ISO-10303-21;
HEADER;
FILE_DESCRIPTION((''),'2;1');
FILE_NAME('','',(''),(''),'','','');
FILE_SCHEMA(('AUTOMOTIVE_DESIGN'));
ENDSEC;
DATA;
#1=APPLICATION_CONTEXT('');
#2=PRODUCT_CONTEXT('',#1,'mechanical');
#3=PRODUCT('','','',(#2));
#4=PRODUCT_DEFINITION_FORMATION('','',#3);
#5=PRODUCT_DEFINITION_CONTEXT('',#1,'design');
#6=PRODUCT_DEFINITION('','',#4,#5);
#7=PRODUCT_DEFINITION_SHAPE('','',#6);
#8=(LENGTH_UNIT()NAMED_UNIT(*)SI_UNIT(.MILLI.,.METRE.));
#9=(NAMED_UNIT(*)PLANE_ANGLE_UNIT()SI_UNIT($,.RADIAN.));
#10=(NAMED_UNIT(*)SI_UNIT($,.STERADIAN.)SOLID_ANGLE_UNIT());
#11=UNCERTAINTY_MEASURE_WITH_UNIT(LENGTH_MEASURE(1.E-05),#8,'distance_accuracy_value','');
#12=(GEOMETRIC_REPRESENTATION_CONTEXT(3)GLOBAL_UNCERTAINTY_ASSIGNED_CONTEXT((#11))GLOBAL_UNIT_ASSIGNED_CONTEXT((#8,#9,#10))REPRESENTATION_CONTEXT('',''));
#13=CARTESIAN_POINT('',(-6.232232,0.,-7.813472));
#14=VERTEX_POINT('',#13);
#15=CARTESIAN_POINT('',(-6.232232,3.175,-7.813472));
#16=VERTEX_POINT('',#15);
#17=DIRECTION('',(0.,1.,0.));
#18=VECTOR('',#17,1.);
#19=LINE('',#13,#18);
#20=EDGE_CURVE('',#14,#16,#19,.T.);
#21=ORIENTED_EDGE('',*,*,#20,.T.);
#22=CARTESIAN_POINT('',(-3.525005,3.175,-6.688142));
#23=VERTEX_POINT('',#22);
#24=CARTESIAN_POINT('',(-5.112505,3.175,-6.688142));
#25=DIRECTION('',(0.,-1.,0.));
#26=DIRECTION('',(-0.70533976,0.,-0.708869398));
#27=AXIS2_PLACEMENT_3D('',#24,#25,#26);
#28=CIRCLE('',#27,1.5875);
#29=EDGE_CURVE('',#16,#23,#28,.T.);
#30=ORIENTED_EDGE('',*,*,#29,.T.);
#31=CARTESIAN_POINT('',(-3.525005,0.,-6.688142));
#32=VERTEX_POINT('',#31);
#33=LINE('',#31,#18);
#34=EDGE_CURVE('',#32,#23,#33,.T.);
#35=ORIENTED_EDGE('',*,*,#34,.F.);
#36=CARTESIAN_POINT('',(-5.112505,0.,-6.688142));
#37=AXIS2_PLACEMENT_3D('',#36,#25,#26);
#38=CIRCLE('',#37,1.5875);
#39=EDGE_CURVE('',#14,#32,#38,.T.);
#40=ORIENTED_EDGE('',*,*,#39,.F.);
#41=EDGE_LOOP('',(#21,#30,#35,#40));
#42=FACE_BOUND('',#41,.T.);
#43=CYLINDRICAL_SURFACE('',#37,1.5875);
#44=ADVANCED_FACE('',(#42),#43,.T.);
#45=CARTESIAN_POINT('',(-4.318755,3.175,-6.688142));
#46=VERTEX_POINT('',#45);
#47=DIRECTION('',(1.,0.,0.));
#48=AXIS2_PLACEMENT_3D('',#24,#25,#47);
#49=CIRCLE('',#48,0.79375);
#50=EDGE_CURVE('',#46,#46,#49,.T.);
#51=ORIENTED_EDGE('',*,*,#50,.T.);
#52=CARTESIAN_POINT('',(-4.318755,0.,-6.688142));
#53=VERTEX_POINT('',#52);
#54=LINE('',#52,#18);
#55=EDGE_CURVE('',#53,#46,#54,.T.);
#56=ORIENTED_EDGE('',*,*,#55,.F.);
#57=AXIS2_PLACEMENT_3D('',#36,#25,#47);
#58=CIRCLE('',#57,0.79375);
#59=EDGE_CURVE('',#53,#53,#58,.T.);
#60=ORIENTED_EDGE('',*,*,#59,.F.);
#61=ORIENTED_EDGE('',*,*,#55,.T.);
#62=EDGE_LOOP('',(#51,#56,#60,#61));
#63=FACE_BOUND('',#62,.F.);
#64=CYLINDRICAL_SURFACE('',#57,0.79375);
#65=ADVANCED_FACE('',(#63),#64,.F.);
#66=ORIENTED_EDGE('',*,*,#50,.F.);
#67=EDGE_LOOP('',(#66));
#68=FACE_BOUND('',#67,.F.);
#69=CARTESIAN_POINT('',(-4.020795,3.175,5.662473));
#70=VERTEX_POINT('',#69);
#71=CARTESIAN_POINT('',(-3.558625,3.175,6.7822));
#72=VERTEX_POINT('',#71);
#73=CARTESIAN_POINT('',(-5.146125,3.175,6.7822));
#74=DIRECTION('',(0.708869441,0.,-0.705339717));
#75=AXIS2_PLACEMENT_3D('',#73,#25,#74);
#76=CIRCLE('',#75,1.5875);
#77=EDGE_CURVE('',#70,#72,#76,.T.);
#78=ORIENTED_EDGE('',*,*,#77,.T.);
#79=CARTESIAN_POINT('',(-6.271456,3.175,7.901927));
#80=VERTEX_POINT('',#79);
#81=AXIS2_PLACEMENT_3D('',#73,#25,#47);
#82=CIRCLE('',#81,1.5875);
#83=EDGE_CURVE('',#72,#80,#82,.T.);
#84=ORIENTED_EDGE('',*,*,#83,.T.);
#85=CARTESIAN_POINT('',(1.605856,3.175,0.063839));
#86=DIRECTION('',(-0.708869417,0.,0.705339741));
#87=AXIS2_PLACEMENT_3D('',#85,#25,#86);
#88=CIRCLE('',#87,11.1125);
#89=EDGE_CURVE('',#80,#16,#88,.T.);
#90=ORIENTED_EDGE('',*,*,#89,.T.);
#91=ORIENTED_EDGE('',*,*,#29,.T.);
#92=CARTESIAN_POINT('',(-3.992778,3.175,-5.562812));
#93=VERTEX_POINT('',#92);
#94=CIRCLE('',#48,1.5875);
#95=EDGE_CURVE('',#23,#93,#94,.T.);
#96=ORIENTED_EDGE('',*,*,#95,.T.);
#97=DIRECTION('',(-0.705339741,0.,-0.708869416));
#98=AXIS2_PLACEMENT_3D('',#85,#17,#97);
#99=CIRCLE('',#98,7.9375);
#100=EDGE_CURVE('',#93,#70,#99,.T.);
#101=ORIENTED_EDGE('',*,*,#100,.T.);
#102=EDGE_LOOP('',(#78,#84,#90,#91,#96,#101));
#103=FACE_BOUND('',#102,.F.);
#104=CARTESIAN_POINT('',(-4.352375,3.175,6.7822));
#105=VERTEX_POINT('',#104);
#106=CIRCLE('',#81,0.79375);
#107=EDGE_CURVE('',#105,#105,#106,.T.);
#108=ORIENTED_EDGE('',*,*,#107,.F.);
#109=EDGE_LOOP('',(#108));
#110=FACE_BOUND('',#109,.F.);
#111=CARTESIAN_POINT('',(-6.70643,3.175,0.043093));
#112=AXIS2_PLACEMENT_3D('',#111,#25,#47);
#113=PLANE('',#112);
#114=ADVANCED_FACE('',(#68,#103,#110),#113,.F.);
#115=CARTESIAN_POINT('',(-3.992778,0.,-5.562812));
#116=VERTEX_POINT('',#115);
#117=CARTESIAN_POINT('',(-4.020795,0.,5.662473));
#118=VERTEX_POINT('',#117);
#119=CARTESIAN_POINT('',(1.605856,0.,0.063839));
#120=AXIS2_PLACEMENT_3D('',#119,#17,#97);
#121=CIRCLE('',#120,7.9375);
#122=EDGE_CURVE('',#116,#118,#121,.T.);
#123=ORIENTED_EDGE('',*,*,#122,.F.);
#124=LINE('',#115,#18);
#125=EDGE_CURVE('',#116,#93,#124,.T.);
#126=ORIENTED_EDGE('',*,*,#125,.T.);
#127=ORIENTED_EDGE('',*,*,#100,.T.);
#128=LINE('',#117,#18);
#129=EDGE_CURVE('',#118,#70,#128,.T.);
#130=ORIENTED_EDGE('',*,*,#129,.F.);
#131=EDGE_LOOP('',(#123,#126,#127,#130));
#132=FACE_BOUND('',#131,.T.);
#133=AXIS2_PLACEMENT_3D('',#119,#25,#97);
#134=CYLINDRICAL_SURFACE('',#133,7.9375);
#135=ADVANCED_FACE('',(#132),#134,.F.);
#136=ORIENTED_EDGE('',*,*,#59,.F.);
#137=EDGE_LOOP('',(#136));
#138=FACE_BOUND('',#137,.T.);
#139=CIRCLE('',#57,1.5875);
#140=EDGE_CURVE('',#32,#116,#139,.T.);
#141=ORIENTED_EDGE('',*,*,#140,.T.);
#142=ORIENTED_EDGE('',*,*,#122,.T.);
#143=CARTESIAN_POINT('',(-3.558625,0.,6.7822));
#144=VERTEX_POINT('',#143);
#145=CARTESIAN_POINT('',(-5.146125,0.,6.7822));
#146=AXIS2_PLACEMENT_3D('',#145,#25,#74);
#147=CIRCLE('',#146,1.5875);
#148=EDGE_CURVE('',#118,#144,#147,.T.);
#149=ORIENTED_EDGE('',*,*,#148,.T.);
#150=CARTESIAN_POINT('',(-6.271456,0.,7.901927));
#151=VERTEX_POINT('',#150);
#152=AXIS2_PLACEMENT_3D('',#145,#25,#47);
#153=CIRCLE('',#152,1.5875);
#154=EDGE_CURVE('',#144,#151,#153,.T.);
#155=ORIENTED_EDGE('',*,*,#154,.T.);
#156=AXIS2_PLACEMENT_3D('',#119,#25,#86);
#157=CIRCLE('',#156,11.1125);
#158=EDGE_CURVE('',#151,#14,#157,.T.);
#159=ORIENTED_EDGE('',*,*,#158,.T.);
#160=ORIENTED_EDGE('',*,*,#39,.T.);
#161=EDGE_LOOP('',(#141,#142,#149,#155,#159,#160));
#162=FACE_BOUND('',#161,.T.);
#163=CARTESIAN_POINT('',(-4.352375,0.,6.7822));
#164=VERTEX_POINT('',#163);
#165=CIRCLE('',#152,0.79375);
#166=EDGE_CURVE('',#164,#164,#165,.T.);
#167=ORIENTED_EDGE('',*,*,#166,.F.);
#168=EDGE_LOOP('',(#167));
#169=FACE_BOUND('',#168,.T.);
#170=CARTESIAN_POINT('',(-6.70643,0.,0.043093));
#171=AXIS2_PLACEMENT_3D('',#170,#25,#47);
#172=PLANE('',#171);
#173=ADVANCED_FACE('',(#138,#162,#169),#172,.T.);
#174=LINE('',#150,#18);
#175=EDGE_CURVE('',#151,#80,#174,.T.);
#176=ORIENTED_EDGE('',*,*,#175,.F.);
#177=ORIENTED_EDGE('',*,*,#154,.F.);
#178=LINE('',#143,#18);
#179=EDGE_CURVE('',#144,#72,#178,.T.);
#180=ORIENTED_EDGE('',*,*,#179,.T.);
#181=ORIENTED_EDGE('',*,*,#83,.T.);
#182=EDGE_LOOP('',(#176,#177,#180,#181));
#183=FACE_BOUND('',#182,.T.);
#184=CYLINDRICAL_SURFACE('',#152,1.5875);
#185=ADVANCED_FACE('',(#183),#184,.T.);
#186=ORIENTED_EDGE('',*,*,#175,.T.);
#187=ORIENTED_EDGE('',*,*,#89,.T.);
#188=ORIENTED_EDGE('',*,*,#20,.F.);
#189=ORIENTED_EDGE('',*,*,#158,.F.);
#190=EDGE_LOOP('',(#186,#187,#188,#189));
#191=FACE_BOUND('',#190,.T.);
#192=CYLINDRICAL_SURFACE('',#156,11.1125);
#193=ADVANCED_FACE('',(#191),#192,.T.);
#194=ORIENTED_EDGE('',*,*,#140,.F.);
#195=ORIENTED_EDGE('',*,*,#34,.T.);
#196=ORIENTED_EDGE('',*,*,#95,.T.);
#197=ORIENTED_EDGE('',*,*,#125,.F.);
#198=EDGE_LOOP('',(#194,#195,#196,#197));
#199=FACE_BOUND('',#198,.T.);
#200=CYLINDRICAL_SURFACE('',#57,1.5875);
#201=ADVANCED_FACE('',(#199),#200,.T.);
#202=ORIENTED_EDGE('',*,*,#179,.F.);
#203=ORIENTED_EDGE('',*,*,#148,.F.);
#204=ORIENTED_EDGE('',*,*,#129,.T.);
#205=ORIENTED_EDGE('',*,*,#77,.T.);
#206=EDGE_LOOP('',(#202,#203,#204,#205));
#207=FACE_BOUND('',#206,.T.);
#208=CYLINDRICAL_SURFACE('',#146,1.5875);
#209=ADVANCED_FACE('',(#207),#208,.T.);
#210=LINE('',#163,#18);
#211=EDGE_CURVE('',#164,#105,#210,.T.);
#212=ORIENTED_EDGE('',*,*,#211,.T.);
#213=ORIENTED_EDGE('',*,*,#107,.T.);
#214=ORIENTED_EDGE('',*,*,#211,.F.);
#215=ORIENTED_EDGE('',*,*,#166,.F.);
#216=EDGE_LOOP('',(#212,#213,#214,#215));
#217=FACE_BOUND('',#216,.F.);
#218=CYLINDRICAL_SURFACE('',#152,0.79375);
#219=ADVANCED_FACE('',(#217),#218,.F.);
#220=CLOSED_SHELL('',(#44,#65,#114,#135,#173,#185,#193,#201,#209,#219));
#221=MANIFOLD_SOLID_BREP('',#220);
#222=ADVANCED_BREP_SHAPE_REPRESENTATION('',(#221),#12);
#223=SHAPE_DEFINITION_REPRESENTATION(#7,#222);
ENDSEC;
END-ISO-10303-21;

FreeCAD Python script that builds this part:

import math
import FreeCAD as App
import Part
import Sketcher

V = App.Vector
Q = App.Units.Quantity

doc = App.newDocument("Part")
body = doc.addObject("PartDesign::Body", "Body")

# Sketch on XZ plane
sketch1 = body.newObject("Sketcher::SketchObject", "Sketch")
sketch1.AttachmentSupport = (doc.getObject("XZ_Plane"), [""])
sketch1.MapMode = "FlatFace"
sketch1.addGeometry(Part.ArcOfCircle(Part.Circle(V(1.6, 0.1, 0), V(0, 0, 1), 7.9), math.radians(135), math.radians(225)), False)
sketch1.addGeometry(Part.ArcOfCircle(Part.Circle(V(-5.1, 6.8, 0), V(0, 0, 1), 1.6), math.radians(-45), math.radians(0)), False)
sketch1.addGeometry(Part.ArcOfCircle(Part.Circle(V(-5.1, 6.8, 0), V(0, 0, 1), 1.6), math.radians(0), math.radians(135)), False)
sketch1.addGeometry(Part.ArcOfCircle(Part.Circle(V(1.6, 0.1, 0), V(0, 0, 1), 11.1), math.radians(135), math.radians(225)), False)
sketch1.addGeometry(Part.ArcOfCircle(Part.Circle(V(-5.1, -6.7, 0), V(0, 0, 1), 1.6), math.radians(-135), math.radians(0)), False)
sketch1.addGeometry(Part.ArcOfCircle(Part.Circle(V(-5.1, -6.7, 0), V(0, 0, 1), 1.6), math.radians(0), math.radians(45)), False)
sketch1.addGeometry(Part.Circle(V(-5.1, -6.7, 0), V(0, 0, 1), 0.8), False)
sketch1.addGeometry(Part.Circle(V(-5.1, 6.8, 0), V(0, 0, 1), 0.8), False)
sketch1.addConstraint(Sketcher.Constraint("Tangent", 0, 1, 1, 1))
sketch1.addConstraint(Sketcher.Constraint("Tangent", 1, 2, 2, 1))
sketch1.addConstraint(Sketcher.Constraint("Tangent", 2, 2, 3, 1))
sketch1.addConstraint(Sketcher.Constraint("Tangent", 3, 2, 4, 1))
sketch1.addConstraint(Sketcher.Constraint("Tangent", 4, 2, 5, 1))
sketch1.addConstraint(Sketcher.Constraint("Tangent", 5, 2, 0, 2))
sketch1.addConstraint(Sketcher.Constraint("Coincident", 3, 3, 0, 3))
sketch1.addConstraint(Sketcher.Constraint("Coincident", 6, 3, 4, 3))
sketch1.addConstraint(Sketcher.Constraint("Coincident", 7, 3, 1, 3))
sketch1.addConstraint(Sketcher.Constraint("Equal", 1, 2))
sketch1.addConstraint(Sketcher.Constraint("Equal", 2, 4))
sketch1.addConstraint(Sketcher.Constraint("Equal", 6, 7))
sketch1.addConstraint(Sketcher.Constraint("Horizontal", 7, 3, 1, 2))
sketch1.addConstraint(Sketcher.Constraint("Horizontal", 6, 3, 4, 2))
sketch1.addConstraint(Sketcher.Constraint("Diameter", 6, Q("0.0625 in")))
sketch1.addConstraint(Sketcher.Constraint("Radius", 0, Q("0.3125 in")))
sketch1.addConstraint(Sketcher.Constraint("Radius", 1, Q("0.0625 in")))
sketch1.addConstraint(Sketcher.Constraint("DistanceY", -1, 1, 1, 3, 6.7822))
sketch1.addConstraint(Sketcher.Constraint("DistanceY", -1, 1, 0, 3, 0.063839))
sketch1.addConstraint(Sketcher.Constraint("DistanceX", 5, 2, -1, 1, 3.992778))
sketch1.addConstraint(Sketcher.Constraint("DistanceY", 5, 2, -1, 1, 5.562812))
pad1 = body.newObject("PartDesign::Pad", "Pad")
pad1.Profile = sketch1
pad1.Length = Q("0.125 in")
pad1.Reversed = True

doc.recompute()
